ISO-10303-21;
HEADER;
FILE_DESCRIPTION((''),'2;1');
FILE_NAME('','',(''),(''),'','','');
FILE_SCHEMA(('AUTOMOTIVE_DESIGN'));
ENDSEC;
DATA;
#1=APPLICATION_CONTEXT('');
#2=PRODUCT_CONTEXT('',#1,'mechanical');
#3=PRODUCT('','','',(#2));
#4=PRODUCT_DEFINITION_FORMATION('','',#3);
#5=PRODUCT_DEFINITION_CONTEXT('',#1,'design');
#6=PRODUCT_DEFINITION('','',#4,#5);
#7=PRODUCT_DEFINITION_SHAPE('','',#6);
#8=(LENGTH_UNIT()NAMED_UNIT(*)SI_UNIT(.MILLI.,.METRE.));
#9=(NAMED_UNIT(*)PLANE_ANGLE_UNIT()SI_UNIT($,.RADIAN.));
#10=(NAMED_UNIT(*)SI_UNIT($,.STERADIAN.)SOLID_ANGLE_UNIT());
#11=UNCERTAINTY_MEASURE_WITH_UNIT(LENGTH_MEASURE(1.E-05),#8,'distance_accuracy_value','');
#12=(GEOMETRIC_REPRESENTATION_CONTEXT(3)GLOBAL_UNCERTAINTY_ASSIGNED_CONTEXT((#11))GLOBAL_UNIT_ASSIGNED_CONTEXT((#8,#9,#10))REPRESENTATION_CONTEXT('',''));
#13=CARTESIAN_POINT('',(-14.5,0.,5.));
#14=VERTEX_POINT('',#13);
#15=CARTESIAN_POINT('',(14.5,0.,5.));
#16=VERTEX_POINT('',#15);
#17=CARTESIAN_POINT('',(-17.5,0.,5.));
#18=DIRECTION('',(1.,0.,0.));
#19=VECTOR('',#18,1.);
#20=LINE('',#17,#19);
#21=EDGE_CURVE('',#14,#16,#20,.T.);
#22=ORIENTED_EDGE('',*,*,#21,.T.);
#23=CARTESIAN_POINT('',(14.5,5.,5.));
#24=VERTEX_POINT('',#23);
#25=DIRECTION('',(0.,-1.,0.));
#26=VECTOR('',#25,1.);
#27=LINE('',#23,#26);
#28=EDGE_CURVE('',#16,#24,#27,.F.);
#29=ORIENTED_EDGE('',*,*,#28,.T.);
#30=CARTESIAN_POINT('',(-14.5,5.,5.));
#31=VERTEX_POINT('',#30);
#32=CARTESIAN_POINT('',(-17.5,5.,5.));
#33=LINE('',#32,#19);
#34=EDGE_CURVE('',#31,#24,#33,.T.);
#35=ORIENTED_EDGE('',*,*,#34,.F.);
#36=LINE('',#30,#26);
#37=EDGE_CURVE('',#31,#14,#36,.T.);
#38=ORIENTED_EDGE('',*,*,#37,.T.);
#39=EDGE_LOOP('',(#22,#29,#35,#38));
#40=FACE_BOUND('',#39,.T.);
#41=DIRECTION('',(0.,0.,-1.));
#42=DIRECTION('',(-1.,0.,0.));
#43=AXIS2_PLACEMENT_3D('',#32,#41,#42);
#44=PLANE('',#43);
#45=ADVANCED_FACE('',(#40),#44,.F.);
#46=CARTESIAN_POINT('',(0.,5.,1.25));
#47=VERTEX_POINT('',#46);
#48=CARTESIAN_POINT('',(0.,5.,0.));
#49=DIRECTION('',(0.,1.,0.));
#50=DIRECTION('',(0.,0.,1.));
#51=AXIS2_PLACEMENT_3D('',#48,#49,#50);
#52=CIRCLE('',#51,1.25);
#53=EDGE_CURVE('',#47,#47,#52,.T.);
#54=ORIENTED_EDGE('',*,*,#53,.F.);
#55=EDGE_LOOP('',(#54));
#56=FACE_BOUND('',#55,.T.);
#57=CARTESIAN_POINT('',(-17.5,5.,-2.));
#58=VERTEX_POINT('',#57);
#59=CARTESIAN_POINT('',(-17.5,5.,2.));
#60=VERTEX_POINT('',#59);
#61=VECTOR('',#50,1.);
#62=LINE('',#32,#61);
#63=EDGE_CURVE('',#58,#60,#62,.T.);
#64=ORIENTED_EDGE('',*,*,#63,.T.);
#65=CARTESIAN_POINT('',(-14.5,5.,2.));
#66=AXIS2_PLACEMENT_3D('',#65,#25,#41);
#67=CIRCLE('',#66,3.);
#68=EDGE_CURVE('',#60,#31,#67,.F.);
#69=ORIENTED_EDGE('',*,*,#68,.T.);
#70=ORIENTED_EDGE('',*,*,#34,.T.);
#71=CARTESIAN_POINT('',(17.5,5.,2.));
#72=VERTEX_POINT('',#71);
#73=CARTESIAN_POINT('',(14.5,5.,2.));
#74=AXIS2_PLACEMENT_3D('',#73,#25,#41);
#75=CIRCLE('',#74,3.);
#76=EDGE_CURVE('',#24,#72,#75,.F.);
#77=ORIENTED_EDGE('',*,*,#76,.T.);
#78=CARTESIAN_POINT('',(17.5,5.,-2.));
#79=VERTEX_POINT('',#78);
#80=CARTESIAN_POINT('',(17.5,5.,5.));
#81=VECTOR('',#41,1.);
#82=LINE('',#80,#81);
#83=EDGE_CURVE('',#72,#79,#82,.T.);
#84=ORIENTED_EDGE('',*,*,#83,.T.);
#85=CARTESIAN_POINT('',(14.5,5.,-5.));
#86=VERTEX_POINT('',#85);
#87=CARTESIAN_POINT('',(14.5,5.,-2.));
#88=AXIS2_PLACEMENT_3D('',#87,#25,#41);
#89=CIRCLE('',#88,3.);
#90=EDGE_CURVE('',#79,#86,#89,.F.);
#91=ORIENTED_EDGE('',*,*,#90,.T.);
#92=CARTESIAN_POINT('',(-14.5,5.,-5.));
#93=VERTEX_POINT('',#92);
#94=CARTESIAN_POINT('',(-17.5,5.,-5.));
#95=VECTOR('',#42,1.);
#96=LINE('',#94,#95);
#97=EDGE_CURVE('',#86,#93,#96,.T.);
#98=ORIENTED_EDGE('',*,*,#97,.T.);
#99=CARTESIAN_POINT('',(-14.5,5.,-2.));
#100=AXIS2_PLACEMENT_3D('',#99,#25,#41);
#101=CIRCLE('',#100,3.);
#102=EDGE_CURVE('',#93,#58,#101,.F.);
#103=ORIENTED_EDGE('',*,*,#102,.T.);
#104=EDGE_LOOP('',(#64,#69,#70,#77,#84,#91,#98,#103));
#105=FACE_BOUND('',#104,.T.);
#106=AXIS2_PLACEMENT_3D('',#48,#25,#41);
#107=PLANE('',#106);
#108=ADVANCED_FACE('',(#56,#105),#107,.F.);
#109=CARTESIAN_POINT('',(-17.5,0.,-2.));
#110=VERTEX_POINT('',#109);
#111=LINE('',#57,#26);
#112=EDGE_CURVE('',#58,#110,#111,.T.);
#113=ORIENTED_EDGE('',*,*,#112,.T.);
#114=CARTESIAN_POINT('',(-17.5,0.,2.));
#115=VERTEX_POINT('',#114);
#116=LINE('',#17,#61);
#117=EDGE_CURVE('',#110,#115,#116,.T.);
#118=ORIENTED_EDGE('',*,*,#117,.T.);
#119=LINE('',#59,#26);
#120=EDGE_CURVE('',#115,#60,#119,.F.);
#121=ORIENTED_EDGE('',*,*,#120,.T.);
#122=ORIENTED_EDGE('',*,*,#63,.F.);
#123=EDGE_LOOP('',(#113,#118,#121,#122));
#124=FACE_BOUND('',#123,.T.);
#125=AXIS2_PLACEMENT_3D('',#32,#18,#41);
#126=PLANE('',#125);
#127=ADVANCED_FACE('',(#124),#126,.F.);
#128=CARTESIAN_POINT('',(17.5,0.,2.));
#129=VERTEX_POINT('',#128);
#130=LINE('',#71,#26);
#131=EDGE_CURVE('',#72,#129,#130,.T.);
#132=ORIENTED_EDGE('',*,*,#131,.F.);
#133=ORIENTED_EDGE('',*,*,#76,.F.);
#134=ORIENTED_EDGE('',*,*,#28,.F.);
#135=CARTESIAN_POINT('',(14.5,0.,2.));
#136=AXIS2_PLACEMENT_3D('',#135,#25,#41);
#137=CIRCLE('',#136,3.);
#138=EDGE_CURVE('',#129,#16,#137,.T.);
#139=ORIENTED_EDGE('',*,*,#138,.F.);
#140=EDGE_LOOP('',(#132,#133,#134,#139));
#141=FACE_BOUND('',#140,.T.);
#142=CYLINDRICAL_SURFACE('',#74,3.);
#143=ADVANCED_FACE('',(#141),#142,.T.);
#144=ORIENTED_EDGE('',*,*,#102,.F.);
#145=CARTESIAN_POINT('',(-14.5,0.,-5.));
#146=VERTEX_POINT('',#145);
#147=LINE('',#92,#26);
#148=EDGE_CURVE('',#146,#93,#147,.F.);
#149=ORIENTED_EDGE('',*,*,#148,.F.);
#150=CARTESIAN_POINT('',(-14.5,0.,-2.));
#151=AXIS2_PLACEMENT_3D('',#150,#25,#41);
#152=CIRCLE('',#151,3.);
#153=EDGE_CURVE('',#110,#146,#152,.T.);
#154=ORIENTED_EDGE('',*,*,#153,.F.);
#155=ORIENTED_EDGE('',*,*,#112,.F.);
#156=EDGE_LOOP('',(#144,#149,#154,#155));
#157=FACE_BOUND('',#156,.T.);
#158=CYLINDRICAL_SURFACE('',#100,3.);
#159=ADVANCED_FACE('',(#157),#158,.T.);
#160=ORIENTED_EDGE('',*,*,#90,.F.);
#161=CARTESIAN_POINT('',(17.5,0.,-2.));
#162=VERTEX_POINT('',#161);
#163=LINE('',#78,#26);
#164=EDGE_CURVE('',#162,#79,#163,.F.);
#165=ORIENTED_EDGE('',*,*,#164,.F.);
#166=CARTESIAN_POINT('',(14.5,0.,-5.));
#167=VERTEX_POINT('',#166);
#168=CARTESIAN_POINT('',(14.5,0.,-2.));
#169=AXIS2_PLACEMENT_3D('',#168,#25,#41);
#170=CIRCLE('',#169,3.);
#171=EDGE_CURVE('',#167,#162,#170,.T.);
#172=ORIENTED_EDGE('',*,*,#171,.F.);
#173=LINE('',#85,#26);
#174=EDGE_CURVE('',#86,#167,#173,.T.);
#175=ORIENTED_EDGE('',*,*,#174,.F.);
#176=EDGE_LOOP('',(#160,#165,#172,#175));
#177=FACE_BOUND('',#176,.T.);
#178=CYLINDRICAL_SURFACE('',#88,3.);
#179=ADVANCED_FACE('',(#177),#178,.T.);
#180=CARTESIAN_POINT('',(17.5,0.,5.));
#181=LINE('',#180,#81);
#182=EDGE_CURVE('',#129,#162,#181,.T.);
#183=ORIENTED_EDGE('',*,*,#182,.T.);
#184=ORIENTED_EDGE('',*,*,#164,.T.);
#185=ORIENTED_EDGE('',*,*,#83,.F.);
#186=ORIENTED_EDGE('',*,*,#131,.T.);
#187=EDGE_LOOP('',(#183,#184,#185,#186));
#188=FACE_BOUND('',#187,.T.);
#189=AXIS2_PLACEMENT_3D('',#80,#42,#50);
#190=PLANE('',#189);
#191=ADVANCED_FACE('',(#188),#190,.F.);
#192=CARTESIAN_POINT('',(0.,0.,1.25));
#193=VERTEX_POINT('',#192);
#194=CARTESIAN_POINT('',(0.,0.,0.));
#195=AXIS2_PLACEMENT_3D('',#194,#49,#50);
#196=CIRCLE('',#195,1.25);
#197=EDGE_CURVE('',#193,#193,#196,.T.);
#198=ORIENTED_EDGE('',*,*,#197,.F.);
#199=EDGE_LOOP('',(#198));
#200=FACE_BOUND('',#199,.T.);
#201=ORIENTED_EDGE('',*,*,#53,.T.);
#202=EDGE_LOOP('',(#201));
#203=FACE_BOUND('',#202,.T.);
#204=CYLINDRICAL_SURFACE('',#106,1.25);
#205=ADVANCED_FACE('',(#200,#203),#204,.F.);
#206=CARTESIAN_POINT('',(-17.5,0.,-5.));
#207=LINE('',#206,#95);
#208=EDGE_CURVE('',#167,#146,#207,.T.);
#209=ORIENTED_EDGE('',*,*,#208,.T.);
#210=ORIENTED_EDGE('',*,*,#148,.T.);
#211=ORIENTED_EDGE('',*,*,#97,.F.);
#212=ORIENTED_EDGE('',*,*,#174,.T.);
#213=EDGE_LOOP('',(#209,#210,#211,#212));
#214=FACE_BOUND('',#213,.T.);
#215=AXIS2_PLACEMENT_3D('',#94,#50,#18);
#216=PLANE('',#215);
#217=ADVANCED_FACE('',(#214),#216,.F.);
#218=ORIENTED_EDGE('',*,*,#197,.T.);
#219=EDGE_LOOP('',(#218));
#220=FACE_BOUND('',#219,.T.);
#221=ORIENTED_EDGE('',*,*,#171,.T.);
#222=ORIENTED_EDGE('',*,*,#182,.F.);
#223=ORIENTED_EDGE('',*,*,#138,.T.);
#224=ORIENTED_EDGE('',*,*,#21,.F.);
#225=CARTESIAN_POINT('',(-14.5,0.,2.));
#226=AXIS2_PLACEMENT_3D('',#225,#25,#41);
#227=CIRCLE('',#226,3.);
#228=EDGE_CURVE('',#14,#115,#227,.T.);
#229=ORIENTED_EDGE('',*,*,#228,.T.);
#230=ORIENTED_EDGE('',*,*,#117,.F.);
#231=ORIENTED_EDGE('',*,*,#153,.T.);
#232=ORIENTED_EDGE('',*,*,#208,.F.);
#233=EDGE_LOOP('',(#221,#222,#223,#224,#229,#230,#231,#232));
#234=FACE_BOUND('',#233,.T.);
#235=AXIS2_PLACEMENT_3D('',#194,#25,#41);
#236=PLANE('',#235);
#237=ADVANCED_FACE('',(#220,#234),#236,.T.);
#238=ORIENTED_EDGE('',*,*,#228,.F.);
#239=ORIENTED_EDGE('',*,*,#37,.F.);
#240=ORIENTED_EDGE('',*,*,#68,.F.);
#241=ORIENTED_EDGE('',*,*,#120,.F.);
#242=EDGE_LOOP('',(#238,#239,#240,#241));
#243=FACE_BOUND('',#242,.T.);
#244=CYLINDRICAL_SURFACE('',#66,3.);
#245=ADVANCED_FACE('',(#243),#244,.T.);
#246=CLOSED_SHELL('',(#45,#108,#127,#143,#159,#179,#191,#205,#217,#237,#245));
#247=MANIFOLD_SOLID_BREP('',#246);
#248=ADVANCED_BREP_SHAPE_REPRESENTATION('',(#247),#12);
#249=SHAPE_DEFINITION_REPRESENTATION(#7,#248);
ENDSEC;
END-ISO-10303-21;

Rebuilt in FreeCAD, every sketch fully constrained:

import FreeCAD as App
import Part
import Sketcher


def edges_at(feature, points):
    """Names of the edges that pass closest to the given points."""
    edges = feature.Shape.Edges
    near = lambda p: min(range(len(edges)), key=lambda i: edges[i].distToShape(Part.Vertex(*p))[0])
    return sorted({f"Edge{near(p) + 1}" for p in points})


def add_polygon(sketch, points):
    """Adds a closed chain of lines whose ends are joined by coincident constraints."""
    first, n = sketch.GeometryCount, len(points)
    for a, b in zip(points, points[1:] + points[:1]):
        sketch.addGeometry(Part.LineSegment(App.Vector(*a, 0), App.Vector(*b, 0)), False)
    for i in range(n):
        sketch.addConstraint(Sketcher.Constraint("Coincident", first + i, 2, first + (i + 1) % n, 1))

doc = App.newDocument("Part")
body = doc.addObject("PartDesign::Body", "Body")

sketch1 = doc.addObject("Sketcher::SketchObject", "Sketch")
body.addObject(sketch1)
sketch1.AttachmentSupport = (doc.XZ_Plane, [""])
sketch1.MapMode = "FlatFace"
add_polygon(sketch1, [(-17.5, -5), (-17.5, 5), (17.5, 5), (17.5, -5)])
sketch1.addGeometry(Part.Circle(App.Vector(0, 0, 0), App.Vector(0, 0, 1), 1.2), False)
sketch1.addConstraint(Sketcher.Constraint("Vertical", 0))
sketch1.addConstraint(Sketcher.Constraint("Horizontal", 1))
sketch1.addConstraint(Sketcher.Constraint("Vertical", 2))
sketch1.addConstraint(Sketcher.Constraint("Horizontal", 3))
sketch1.addConstraint(Sketcher.Constraint("Coincident", 4, 3, -1, 1))
sketch1.addConstraint(Sketcher.Constraint("Symmetric", 0, 2, 2, 2, -1, 1))
sketch1.addConstraint(Sketcher.Constraint("Diameter", 4, 2.5))
sketch1.addConstraint(Sketcher.Constraint("DistanceX", 1, 1, 1, 2, 35.0))
sketch1.addConstraint(Sketcher.Constraint("DistanceY", 0, 1, 0, 2, 10.0))
pad1 = doc.addObject("PartDesign::Pad", "Pad")
body.addObject(pad1)
pad1.Profile = sketch1
pad1.Length = 5
pad1.Reversed = True
doc.recompute()

fillet = doc.addObject("PartDesign::Fillet", "Fillet")
body.addObject(fillet)
fillet.Base = (pad1, edges_at(pad1, [
    (17.5, 2.5, 5),
    (-17.5, 2.5, 5),
    (-17.5, 2.5, -5),
    (17.5, 2.5, -5),
]))
fillet.Radius = 3

doc.recompute()
